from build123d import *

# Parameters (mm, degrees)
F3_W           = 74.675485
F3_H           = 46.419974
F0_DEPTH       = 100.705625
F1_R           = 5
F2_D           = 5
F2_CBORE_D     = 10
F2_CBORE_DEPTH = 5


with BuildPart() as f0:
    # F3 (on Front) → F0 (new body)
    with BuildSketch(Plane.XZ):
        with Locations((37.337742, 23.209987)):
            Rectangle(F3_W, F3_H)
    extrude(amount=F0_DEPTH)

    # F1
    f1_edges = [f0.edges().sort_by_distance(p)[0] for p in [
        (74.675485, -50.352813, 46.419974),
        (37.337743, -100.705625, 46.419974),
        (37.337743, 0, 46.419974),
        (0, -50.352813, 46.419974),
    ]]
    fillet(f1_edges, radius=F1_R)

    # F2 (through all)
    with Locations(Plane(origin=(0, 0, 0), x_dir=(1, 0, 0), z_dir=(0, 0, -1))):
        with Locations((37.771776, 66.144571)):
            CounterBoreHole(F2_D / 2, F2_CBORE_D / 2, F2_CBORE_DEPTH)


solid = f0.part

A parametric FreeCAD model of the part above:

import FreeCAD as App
import Part
import Sketcher
from FreeCAD import Vector
Q = App.Units.Quantity


def edges_at(feature, points):
    """Names of the edges that pass closest to the given points."""
    edges = feature.Shape.Edges
    near = lambda p: min(range(len(edges)), key=lambda i: edges[i].distToShape(Part.Vertex(*p))[0])
    return sorted({f"Edge{near(p) + 1}" for p in points})


def add_polygon(sketch, points):
    """Adds a closed chain of lines whose ends are joined by coincident constraints."""
    first, n = sketch.GeometryCount, len(points)
    for a, b in zip(points, points[1:] + points[:1]):
        sketch.addGeometry(Part.LineSegment(App.Vector(*a, 0), App.Vector(*b, 0)), False)
    for i in range(n):
        sketch.addConstraint(Sketcher.Constraint("Coincident", first + i, 2, first + (i + 1) % n, 1))

doc = App.newDocument("Part")
body = doc.addObject("PartDesign::Body", "Body")

sketch1 = doc.addObject("Sketcher::SketchObject", "Sketch")
body.addObject(sketch1)
sketch1.AttachmentSupport = (doc.XZ_Plane, [""])
sketch1.MapMode = "FlatFace"
add_polygon(sketch1, [(0, 46.419974), (0, 0), (74.675484, 0), (74.675484, 46.419974)])
sketch1.addConstraint([
    Sketcher.Constraint("Vertical", 0),
    Sketcher.Constraint("Horizontal", 1),
    Sketcher.Constraint("Vertical", 2),
    Sketcher.Constraint("Horizontal", 3),
    Sketcher.Constraint("Coincident", 0, 2, -1, 1),
    Sketcher.Constraint("DistanceX", 1, 1, 1, 2, Q("74.675485 mm")),
    Sketcher.Constraint("DistanceY", 0, 2, 0, 1, Q("46.419974 mm")),
])
pad1 = doc.addObject("PartDesign::Pad", "Pad")
body.addObject(pad1)
pad1.Profile = sketch1
pad1.Length = 100.705625
doc.recompute()

fillet = doc.addObject("PartDesign::Fillet", "Fillet")
body.addObject(fillet)
fillet.Base = (pad1, edges_at(pad1, [
    (74.675, -50.353, 46.42),
    (37.338, -100.706, 46.42),
    (37.338, 0, 46.42),
    (0, -50.353, 46.42),
]))
fillet.Radius = 5

sketch2 = doc.addObject("Sketcher::SketchObject", "Sketch001")
body.addObject(sketch2)
sketch2.AttachmentSupport = (doc.XY_Plane, [""])
sketch2.MapMode = "FlatFace"
sketch2.addGeometry(Part.Circle(Vector(37.771776, -66.144571, 0), Vector(0, 0, 1), 2.5), False)
sketch2.addConstraint([
    Sketcher.Constraint("Diameter", 0, Q("5 mm")),
    Sketcher.Constraint("DistanceY", 0, 3, -1, 1, Q("66.144571 mm")),
    Sketcher.Constraint("DistanceX", -1, 1, 0, 3, Q("37.771776 mm")),
])
doc.recompute()
hole = doc.addObject("PartDesign::Hole", "Hole")
body.addObject(hole)
hole.Profile = sketch2
hole.ThreadType = "None"
hole.Diameter = 5
hole.DepthType = "ThroughAll"
hole.HoleCutType = "Counterbore"
hole.HoleCutDiameter = 10
hole.HoleCutDepth = 5
hole.Reversed = True

doc.recompute()
